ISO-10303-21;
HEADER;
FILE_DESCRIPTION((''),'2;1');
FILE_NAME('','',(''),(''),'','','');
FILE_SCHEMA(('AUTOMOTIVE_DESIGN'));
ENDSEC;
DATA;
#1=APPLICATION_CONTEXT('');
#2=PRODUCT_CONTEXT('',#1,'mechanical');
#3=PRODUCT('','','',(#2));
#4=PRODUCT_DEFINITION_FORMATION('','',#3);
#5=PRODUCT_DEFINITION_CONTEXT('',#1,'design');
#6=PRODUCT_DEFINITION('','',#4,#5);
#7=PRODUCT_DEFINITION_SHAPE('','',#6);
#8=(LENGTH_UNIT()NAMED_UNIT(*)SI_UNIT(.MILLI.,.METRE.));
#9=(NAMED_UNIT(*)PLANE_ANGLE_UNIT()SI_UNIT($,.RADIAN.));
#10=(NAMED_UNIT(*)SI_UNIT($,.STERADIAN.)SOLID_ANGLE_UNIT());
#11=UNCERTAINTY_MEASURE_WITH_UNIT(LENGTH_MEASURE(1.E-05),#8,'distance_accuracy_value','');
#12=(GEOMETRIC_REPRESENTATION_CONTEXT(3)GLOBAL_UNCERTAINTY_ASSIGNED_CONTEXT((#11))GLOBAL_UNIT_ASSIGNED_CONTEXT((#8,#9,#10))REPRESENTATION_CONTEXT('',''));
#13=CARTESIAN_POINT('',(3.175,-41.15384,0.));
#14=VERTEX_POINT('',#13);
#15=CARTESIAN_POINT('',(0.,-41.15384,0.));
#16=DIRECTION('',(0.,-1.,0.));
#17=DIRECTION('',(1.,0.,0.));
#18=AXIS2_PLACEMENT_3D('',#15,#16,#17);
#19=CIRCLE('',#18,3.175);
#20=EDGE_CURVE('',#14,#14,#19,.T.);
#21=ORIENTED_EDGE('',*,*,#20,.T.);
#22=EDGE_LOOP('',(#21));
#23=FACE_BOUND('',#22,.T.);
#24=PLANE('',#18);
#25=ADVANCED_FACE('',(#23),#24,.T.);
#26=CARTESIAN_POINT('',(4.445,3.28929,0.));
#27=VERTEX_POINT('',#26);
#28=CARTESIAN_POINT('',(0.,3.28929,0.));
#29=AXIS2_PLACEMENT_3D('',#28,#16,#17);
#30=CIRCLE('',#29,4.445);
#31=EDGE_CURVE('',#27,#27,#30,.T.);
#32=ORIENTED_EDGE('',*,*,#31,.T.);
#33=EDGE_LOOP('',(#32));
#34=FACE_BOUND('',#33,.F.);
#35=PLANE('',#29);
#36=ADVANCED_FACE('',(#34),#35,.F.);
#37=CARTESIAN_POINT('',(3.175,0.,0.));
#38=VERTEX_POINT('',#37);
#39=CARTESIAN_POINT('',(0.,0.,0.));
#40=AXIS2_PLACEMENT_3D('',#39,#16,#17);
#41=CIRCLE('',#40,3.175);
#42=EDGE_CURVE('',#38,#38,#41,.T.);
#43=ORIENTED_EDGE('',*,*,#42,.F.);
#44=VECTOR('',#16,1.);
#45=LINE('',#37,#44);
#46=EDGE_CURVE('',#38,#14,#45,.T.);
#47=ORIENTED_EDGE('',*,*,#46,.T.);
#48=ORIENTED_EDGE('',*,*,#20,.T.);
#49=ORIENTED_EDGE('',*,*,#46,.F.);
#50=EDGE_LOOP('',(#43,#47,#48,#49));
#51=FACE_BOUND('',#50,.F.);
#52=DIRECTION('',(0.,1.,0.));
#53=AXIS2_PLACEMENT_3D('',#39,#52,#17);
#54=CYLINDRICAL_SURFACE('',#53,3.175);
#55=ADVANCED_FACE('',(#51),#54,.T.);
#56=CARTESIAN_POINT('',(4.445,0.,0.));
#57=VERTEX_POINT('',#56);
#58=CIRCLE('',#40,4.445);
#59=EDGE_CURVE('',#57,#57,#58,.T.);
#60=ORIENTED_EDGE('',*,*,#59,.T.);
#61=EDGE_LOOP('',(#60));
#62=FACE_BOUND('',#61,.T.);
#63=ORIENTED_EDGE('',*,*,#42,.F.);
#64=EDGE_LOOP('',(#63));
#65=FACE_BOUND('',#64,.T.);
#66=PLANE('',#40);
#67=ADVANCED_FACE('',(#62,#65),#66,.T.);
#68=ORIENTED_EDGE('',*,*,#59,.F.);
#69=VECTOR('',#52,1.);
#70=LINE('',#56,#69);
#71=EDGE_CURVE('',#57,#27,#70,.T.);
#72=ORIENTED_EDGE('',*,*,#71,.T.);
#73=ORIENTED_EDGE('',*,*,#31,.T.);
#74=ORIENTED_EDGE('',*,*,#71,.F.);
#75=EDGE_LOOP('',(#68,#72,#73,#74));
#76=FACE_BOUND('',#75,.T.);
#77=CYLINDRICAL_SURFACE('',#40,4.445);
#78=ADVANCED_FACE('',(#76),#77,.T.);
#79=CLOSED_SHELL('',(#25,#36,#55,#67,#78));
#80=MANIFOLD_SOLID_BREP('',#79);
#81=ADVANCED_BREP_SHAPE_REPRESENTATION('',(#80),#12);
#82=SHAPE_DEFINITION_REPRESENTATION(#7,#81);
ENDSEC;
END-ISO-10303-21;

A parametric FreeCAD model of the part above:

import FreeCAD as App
import Part
import Sketcher
from FreeCAD import Vector
Q = App.Units.Quantity

doc = App.newDocument("Part")
body = doc.addObject("PartDesign::Body", "Body")

# Sketch on XZ plane
sketch1 = body.newObject("Sketcher::SketchObject", "Sketch")
sketch1.AttachmentSupport = (doc.getObject("XZ_Plane"), [""])
sketch1.MapMode = "FlatFace"
sketch1.addGeometry(Part.Circle(Vector(0, 0, 0), Vector(0, 0, 1), 3.2), False)
sketch1.addConstraint([
    Sketcher.Constraint("Coincident", 0, 3, -1, 1),
    Sketcher.Constraint("Diameter", 0, Q("0.25 in")),
])
pad1 = body.newObject("PartDesign::Pad", "Pad")
pad1.Profile = sketch1
pad1.Length = 41.15384

# Sketch on XZ plane
sketch2 = body.newObject("Sketcher::SketchObject", "Sketch001")
sketch2.AttachmentSupport = (doc.getObject("XZ_Plane"), [""])
sketch2.MapMode = "FlatFace"
sketch2.addGeometry(Part.Circle(Vector(0, 0, 0), Vector(0, 0, 1), 4.4), False)
sketch2.addConstraint([
    Sketcher.Constraint("Coincident", 0, 3, -1, 1),
    Sketcher.Constraint("Diameter", 0, Q("0.35 in")),
])
pad2 = body.newObject("PartDesign::Pad", "Pad001")
pad2.Profile = sketch2
pad2.Length = 3.28929
pad2.Reversed = True

doc.recompute()
